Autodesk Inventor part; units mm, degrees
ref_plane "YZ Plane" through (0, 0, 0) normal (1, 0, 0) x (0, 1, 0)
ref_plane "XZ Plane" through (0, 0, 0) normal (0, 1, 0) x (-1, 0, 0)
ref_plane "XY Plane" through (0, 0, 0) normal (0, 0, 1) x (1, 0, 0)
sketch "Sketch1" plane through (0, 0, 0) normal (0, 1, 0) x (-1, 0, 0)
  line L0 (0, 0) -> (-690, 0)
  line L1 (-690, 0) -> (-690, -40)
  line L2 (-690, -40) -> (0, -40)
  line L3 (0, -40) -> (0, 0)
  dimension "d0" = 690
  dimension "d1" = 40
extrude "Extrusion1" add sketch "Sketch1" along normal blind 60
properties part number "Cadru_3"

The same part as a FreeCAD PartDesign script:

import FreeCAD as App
import Part
import Sketcher

V = App.Vector
Q = App.Units.Quantity


def add_polygon(sketch, points):
    """Adds a closed chain of lines whose ends are joined by coincident constraints."""
    first, n = sketch.GeometryCount, len(points)
    for a, b in zip(points, points[1:] + points[:1]):
        sketch.addGeometry(Part.LineSegment(App.Vector(*a, 0), App.Vector(*b, 0)), False)
    for i in range(n):
        sketch.addConstraint(Sketcher.Constraint("Coincident", first + i, 2, first + (i + 1) % n, 1))

doc = App.newDocument("Part")
body = doc.addObject("PartDesign::Body", "Body")

# Sketch on XZ plane
sketch1 = body.newObject("Sketcher::SketchObject", "Sketch")
sketch1.AttachmentSupport = (doc.getObject("XZ_Plane"), [""])
sketch1.MapMode = "FlatFace"
add_polygon(sketch1, [(0, -40), (0, 0), (690, 0), (690, -40)])  # lines 0-3
sketch1.addConstraint(Sketcher.Constraint("Vertical", 0))
sketch1.addConstraint(Sketcher.Constraint("Horizontal", 1))
sketch1.addConstraint(Sketcher.Constraint("Vertical", 2))
sketch1.addConstraint(Sketcher.Constraint("Horizontal", 3))
sketch1.addConstraint(Sketcher.Constraint("Coincident", 0, 2, -1, 1))
sketch1.addConstraint(Sketcher.Constraint("DistanceX", 1, 1, 1, 2, Q("690 mm")))
sketch1.addConstraint(Sketcher.Constraint("DistanceY", 0, 1, 0, 2, Q("40 mm")))
pad1 = body.newObject("PartDesign::Pad", "Pad")
pad1.Profile = sketch1
pad1.Length = 60
pad1.Reversed = True

doc.recompute()
